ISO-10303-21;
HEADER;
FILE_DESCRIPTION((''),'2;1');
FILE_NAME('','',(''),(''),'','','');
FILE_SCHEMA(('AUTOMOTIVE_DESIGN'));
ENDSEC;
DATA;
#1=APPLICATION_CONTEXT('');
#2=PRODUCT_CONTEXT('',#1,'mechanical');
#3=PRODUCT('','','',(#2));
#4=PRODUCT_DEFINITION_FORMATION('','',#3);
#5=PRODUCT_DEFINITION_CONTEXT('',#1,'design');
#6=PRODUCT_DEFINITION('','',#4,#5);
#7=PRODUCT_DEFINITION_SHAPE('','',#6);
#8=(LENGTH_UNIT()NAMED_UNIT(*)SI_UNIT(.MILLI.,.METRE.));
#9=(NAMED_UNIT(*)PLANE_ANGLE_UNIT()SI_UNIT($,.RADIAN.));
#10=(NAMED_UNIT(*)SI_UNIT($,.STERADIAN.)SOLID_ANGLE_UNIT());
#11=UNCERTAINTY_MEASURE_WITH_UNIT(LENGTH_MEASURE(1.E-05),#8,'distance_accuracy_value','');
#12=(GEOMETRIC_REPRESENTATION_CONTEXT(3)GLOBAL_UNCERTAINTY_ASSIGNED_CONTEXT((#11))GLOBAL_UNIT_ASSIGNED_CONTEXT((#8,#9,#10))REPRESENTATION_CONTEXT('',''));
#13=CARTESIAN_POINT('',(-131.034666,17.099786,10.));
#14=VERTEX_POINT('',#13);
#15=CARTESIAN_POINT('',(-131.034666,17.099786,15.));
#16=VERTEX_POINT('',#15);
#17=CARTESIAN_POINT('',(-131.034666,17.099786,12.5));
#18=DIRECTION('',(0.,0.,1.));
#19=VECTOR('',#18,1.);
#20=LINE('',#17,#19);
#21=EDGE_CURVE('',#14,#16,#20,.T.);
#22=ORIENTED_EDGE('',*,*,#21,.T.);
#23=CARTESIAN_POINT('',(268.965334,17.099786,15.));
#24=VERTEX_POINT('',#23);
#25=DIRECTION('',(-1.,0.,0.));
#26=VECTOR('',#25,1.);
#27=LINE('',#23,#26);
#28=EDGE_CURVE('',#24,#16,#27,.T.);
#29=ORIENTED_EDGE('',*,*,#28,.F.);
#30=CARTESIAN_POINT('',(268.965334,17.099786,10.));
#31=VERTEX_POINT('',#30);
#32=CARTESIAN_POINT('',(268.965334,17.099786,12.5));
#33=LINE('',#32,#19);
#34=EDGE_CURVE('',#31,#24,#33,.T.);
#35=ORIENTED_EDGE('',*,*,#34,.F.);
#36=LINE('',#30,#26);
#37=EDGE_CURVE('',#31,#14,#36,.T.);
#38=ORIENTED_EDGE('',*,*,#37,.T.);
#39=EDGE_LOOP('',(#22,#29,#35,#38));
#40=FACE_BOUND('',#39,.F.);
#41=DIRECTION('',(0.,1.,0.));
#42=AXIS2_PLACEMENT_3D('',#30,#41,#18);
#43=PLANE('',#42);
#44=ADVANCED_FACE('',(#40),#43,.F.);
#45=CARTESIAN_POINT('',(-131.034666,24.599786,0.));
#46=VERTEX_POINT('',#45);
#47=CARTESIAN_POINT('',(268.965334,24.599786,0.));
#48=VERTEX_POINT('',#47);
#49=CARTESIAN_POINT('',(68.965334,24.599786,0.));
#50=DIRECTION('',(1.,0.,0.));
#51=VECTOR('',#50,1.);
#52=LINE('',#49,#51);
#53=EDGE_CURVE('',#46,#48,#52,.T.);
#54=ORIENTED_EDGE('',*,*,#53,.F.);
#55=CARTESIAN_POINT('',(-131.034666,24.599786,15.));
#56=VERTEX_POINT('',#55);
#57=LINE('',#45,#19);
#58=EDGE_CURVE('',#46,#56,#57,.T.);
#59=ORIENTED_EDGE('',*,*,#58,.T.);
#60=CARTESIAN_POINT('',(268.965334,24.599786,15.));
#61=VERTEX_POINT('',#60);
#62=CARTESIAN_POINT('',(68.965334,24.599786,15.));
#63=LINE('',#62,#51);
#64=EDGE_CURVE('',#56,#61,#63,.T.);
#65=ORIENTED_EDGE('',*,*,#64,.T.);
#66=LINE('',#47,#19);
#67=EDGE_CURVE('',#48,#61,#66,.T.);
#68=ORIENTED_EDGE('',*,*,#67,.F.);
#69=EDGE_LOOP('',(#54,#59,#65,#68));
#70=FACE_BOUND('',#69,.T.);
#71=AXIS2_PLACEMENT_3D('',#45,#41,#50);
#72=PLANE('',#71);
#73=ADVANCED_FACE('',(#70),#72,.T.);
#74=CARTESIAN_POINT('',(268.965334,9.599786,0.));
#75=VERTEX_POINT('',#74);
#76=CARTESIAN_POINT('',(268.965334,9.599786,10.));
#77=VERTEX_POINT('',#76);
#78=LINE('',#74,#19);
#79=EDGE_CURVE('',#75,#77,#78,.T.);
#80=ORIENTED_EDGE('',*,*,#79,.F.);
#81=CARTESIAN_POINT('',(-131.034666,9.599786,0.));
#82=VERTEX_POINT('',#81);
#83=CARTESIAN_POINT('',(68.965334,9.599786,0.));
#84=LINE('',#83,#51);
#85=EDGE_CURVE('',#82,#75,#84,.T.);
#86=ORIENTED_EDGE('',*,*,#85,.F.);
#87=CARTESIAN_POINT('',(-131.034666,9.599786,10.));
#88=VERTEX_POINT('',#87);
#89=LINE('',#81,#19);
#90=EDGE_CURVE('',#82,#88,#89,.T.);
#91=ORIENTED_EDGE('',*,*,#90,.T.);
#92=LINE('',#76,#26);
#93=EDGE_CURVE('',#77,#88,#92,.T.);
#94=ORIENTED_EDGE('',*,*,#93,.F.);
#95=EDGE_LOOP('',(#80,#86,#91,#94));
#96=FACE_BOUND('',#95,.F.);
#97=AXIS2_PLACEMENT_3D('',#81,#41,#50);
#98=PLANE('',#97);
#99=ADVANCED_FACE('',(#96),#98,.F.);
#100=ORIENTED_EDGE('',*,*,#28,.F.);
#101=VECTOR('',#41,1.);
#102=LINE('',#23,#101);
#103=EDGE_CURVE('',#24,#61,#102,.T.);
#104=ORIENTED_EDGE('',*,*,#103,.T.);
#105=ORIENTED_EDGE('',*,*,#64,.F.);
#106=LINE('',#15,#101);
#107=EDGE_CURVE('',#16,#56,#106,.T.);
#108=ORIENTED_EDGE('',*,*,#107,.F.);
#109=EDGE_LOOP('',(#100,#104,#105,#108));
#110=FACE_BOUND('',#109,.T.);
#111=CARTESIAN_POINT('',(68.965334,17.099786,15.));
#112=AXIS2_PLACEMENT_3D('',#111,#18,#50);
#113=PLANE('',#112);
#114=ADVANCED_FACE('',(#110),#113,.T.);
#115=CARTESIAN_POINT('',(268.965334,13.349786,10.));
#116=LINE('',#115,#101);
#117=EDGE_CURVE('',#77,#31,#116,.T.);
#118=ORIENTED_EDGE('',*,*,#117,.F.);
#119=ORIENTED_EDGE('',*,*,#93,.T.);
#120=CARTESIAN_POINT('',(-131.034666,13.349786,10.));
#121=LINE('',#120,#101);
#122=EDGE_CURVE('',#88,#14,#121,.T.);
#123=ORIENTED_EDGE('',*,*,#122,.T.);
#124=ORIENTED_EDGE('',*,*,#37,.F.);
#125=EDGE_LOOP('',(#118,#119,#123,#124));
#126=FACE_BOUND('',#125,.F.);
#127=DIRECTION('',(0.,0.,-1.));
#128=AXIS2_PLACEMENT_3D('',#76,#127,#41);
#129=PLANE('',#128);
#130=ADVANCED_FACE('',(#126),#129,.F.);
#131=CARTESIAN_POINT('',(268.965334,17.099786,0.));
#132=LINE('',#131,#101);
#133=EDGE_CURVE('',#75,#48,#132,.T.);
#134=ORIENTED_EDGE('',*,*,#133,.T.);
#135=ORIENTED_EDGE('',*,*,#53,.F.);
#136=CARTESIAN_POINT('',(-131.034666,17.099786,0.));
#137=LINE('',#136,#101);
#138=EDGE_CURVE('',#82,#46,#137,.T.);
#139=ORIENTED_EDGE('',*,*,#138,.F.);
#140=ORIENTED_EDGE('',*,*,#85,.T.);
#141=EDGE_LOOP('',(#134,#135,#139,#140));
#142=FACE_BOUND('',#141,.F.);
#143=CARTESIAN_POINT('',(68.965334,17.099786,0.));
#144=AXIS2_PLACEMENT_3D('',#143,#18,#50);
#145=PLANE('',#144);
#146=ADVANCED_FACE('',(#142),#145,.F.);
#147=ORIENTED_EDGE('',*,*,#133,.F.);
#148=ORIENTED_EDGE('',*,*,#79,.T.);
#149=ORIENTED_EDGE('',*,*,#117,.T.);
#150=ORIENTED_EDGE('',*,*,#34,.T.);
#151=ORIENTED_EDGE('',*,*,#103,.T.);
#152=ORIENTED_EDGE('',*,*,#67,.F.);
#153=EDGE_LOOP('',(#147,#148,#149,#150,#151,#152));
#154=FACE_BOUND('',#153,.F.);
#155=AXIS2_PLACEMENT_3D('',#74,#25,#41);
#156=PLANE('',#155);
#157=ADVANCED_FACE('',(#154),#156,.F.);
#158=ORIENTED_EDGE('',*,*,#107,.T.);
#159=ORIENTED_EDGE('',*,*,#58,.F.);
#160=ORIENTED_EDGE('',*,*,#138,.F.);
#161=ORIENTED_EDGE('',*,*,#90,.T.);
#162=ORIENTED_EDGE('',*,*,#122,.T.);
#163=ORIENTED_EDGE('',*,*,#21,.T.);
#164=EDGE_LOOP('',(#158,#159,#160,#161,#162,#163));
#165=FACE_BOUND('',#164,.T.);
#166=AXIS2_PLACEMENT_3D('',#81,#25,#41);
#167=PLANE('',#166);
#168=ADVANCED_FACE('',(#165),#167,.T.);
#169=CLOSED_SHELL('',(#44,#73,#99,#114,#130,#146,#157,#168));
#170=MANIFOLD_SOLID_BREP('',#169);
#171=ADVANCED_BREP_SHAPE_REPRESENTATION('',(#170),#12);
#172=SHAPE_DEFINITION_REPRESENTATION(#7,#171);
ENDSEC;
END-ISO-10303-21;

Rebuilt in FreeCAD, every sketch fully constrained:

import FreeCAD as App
import Part
import Sketcher
Q = App.Units.Quantity


def add_polygon(sketch, points):
    """Adds a closed chain of lines whose ends are joined by coincident constraints."""
    first, n = sketch.GeometryCount, len(points)
    for a, b in zip(points, points[1:] + points[:1]):
        sketch.addGeometry(Part.LineSegment(App.Vector(*a, 0), App.Vector(*b, 0)), False)
    for i in range(n):
        sketch.addConstraint(Sketcher.Constraint("Coincident", first + i, 2, first + (i + 1) % n, 1))

doc = App.newDocument("Part")
params = doc.addObject("Spreadsheet::Sheet", "Params")
for row, (alias, value) in enumerate([
    ("sketch1_width", "400 mm"),
    ("sketch1_height", "15 mm"),
    ("pad1_length", "15 mm"),
    ("sketch2_height", "5 mm"),
    ("sketch2_width", "7.5 mm"),
], start=1):
    params.set(f"A{row}", alias)
    params.set(f"B{row}", "=" + value)
    params.setAlias(f"B{row}", alias)

body = doc.addObject("PartDesign::Body", "Body")

# Sketch on XY plane
sketch1 = body.newObject("Sketcher::SketchObject", "Sketch")
sketch1.AttachmentSupport = (doc.getObject("XY_Plane"), [""])
sketch1.MapMode = "FlatFace"
add_polygon(sketch1, [(-131, 25), (-131, 10), (269, 10), (269, 25)])  # lines 0-3
sketch1.addConstraint([
    Sketcher.Constraint("Vertical", 0),
    Sketcher.Constraint("Horizontal", 1),
    Sketcher.Constraint("Vertical", 2),
    Sketcher.Constraint("Horizontal", 3),
    Sketcher.Constraint("DistanceX", 1, 1, 1, 2, Q("400 mm")),
    Sketcher.Constraint("DistanceY", 0, 2, 0, 1, Q("15 mm")),
    Sketcher.Constraint("DistanceX", 0, 2, -1, 1, Q("131.034666 mm")),
    Sketcher.Constraint("DistanceY", -1, 1, 0, 2, Q("9.599786 mm")),
])
sketch1.setExpression("Constraints[8]", "Params.sketch1_width")
sketch1.setExpression("Constraints[9]", "Params.sketch1_height")
pad1 = body.newObject("PartDesign::Pad", "Pad")
pad1.Profile = sketch1
pad1.setExpression("Length", "Params.pad1_length")

# Sketch on YZ plane
sketch2 = body.newObject("Sketcher::SketchObject", "Sketch001")
sketch2.AttachmentSupport = (doc.getObject("YZ_Plane"), [""])
sketch2.MapMode = "FlatFace"
sketch2.AttachmentOffset = App.Placement(App.Vector(0, 0, 268.965334), App.Rotation())
add_polygon(sketch2, [(10, 15), (10, 10), (17, 10), (17, 15)])  # lines 0-3
sketch2.addConstraint([
    Sketcher.Constraint("Vertical", 0),
    Sketcher.Constraint("Horizontal", 1),
    Sketcher.Constraint("Vertical", 2),
    Sketcher.Constraint("Horizontal", 3),
    Sketcher.Constraint("DistanceY", 0, 2, 0, 1, Q("5 mm")),
    Sketcher.Constraint("DistanceX", 1, 1, 1, 2, Q("7.5 mm")),
    Sketcher.Constraint("DistanceY", -1, 1, 0, 2, Q("10 mm")),
    Sketcher.Constraint("DistanceX", -1, 1, 0, 2, Q("9.599786 mm")),
])
sketch2.setExpression("Constraints[8]", "Params.sketch2_height")
sketch2.setExpression("Constraints[9]", "Params.sketch2_width")
pocket1 = body.newObject("PartDesign::Pocket", "Pocket")
pocket1.Profile = sketch2
pocket1.Type = "ThroughAll"

doc.recompute()
